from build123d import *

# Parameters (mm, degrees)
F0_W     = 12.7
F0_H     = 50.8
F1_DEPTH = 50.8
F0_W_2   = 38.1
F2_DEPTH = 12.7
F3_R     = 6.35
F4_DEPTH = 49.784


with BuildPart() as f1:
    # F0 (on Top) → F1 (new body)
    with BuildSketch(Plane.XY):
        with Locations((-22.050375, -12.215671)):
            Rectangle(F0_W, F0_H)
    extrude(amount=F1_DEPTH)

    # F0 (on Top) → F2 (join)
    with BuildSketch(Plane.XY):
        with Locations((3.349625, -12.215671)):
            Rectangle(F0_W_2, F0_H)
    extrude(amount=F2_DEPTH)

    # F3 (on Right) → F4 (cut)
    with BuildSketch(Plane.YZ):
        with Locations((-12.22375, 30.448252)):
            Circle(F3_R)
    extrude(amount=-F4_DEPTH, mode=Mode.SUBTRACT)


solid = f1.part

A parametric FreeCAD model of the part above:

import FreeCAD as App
import Part
import Sketcher

V = App.Vector
Q = App.Units.Quantity

doc = App.newDocument("Part")
body = doc.addObject("PartDesign::Body", "Body")

# Sketch on XY plane
sketch1 = body.newObject("Sketcher::SketchObject", "Sketch")
sketch1.AttachmentSupport = (doc.getObject("XY_Plane"), [""])
sketch1.MapMode = "FlatFace"
sketch1.addGeometry(Part.LineSegment(V(-28, 13, 0), V(-28, -38, 0)), False)
sketch1.addGeometry(Part.LineSegment(V(-28, -38, 0), V(-16, -38, 0)), False)
sketch1.addGeometry(Part.LineSegment(V(-16, -38, 0), V(-16, 13, 0)), False)
sketch1.addGeometry(Part.LineSegment(V(-16, 13, 0), V(-28, 13, 0)), False)
sketch1.addConstraint(Sketcher.Constraint("Coincident", 0, 2, 1, 1))
sketch1.addConstraint(Sketcher.Constraint("Coincident", 1, 2, 2, 1))
sketch1.addConstraint(Sketcher.Constraint("Coincident", 2, 2, 3, 1))
sketch1.addConstraint(Sketcher.Constraint("Coincident", 3, 2, 0, 1))
sketch1.addConstraint(Sketcher.Constraint("Vertical", 0))
sketch1.addConstraint(Sketcher.Constraint("Horizontal", 1))
sketch1.addConstraint(Sketcher.Constraint("Vertical", 2))
sketch1.addConstraint(Sketcher.Constraint("Horizontal", 3))
sketch1.addConstraint(Sketcher.Constraint("DistanceY", 0, 2, 0, 1, Q("2 in")))
sketch1.addConstraint(Sketcher.Constraint("DistanceX", 1, 1, 1, 2, Q("0.5 in")))
sketch1.addConstraint(Sketcher.Constraint("DistanceY", 0, 2, -1, 1, Q("37.615671 mm")))
sketch1.addConstraint(Sketcher.Constraint("DistanceX", 0, 2, -1, 1, Q("28.400375 mm")))
pad1 = body.newObject("PartDesign::Pad", "Pad")
pad1.Profile = sketch1
pad1.Length = Q("2 in")

# Sketch on XY plane
sketch2 = body.newObject("Sketcher::SketchObject", "Sketch001")
sketch2.AttachmentSupport = (doc.getObject("XY_Plane"), [""])
sketch2.MapMode = "FlatFace"
sketch2.addGeometry(Part.LineSegment(V(-16, 13, 0), V(-16, -38, 0)), False)
sketch2.addGeometry(Part.LineSegment(V(-16, -38, 0), V(22, -38, 0)), False)
sketch2.addGeometry(Part.LineSegment(V(22, -38, 0), V(22, 13, 0)), False)
sketch2.addGeometry(Part.LineSegment(V(22, 13, 0), V(-16, 13, 0)), False)
sketch2.addConstraint(Sketcher.Constraint("Coincident", 0, 2, 1, 1))
sketch2.addConstraint(Sketcher.Constraint("Coincident", 1, 2, 2, 1))
sketch2.addConstraint(Sketcher.Constraint("Coincident", 2, 2, 3, 1))
sketch2.addConstraint(Sketcher.Constraint("Coincident", 3, 2, 0, 1))
sketch2.addConstraint(Sketcher.Constraint("Vertical", 0))
sketch2.addConstraint(Sketcher.Constraint("Horizontal", 1))
sketch2.addConstraint(Sketcher.Constraint("Vertical", 2))
sketch2.addConstraint(Sketcher.Constraint("Horizontal", 3))
sketch2.addConstraint(Sketcher.Constraint("DistanceY", 0, 2, 0, 1, Q("2 in")))
sketch2.addConstraint(Sketcher.Constraint("DistanceX", 1, 1, 1, 2, Q("1.5 in")))
sketch2.addConstraint(Sketcher.Constraint("DistanceY", 0, 2, -1, 1, Q("37.615671 mm")))
sketch2.addConstraint(Sketcher.Constraint("DistanceX", 0, 2, -1, 1, Q("15.700375 mm")))
pad2 = body.newObject("PartDesign::Pad", "Pad001")
pad2.Profile = sketch2
pad2.Length = Q("0.5 in")

# Sketch on YZ plane
sketch3 = body.newObject("Sketcher::SketchObject", "Sketch002")
sketch3.AttachmentSupport = (doc.getObject("YZ_Plane"), [""])
sketch3.MapMode = "FlatFace"
sketch3.addGeometry(Part.Circle(V(-12, 30, 0), V(0, 0, 1), 6), False)
sketch3.addConstraint(Sketcher.Constraint("Diameter", 0, Q("0.5 in")))
sketch3.addConstraint(Sketcher.Constraint("DistanceX", 0, 3, -1, 1, Q("12.22375 mm")))
sketch3.addConstraint(Sketcher.Constraint("DistanceY", -1, 1, 0, 3, Q("30.448252 mm")))
pocket1 = body.newObject("PartDesign::Pocket", "Pocket")
pocket1.Profile = sketch3
pocket1.Length = Q("1.96 in")

doc.recompute()
